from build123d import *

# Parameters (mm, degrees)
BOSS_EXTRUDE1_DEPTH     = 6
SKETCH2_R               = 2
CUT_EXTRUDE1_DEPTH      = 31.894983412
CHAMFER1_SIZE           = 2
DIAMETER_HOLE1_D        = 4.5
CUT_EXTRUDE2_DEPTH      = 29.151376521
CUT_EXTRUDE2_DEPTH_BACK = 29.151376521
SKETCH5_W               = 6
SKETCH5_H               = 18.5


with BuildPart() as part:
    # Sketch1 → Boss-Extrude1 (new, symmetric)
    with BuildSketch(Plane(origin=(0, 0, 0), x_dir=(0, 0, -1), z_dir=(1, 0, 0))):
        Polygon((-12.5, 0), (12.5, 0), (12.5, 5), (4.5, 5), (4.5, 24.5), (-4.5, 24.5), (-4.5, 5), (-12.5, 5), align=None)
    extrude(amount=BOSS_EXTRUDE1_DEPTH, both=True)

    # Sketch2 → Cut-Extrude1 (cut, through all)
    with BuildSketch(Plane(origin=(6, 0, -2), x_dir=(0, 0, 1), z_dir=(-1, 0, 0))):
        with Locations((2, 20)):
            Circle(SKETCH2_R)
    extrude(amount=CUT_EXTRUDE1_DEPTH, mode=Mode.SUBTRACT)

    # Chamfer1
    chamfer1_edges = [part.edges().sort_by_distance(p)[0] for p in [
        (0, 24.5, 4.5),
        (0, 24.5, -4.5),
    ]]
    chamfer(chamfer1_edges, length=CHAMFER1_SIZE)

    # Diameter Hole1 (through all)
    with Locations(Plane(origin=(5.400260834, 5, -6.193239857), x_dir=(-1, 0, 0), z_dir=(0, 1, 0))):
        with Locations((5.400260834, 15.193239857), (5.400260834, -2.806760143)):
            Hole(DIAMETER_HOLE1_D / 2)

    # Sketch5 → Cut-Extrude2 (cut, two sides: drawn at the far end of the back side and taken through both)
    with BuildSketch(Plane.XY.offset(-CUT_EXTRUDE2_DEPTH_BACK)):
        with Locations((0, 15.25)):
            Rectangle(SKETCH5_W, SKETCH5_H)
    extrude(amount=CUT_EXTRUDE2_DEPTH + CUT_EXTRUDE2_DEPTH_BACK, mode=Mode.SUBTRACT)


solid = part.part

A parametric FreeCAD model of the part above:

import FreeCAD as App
import Part
import Sketcher
Q = App.Units.Quantity


def edges_at(feature, points):
    """Names of the edges that pass closest to the given points."""
    edges = feature.Shape.Edges
    near = lambda p: min(range(len(edges)), key=lambda i: edges[i].distToShape(Part.Vertex(*p))[0])
    return sorted({f"Edge{near(p) + 1}" for p in points})


def add_polygon(sketch, points):
    """Adds a closed chain of lines whose ends are joined by coincident constraints."""
    first, n = sketch.GeometryCount, len(points)
    for a, b in zip(points, points[1:] + points[:1]):
        sketch.addGeometry(Part.LineSegment(App.Vector(*a, 0), App.Vector(*b, 0)), False)
    for i in range(n):
        sketch.addConstraint(Sketcher.Constraint("Coincident", first + i, 2, first + (i + 1) % n, 1))

doc = App.newDocument("Part")
body = doc.addObject("PartDesign::Body", "Body")

sketch1 = body.newObject("Sketcher::SketchObject", "Sketch")
sketch1.AttachmentSupport = (doc.getObject("YZ_Plane"), [""])
sketch1.MapMode = "FlatFace"
add_polygon(sketch1, [(0, 12), (0, -12), (5, -12), (5, -4), (24, -4), (24, 4), (5, 4), (5, 12)])
sketch1.addConstraint([
    Sketcher.Constraint("Vertical", 0),
    Sketcher.Constraint("Horizontal", 1),
    Sketcher.Constraint("Vertical", 2),
    Sketcher.Constraint("Horizontal", 3),
    Sketcher.Constraint("Vertical", 4),
    Sketcher.Constraint("Horizontal", 5),
    Sketcher.Constraint("Vertical", 6),
    Sketcher.Constraint("Horizontal", 7),
    Sketcher.Constraint("Symmetric", 0, 2, 7, 2, -1, 1),
    Sketcher.Constraint("Symmetric", 2, 2, 5, 2, -1),
    Sketcher.Constraint("DistanceX", 1, 1, 1, 2, Q("5 mm")),
    Sketcher.Constraint("DistanceY", 0, 2, 0, 1, Q("25 mm")),
    Sketcher.Constraint("DistanceY", 2, 1, 2, 2, Q("8 mm")),
    Sketcher.Constraint("DistanceX", 3, 1, 3, 2, Q("19.5 mm")),
])
pad1 = body.newObject("PartDesign::Pad", "Pad")
pad1.Profile = sketch1
pad1.Length = 12
pad1.Midplane = True

sketch2 = body.newObject("Sketcher::SketchObject", "Sketch001")
sketch2.AttachmentSupport = (doc.getObject("YZ_Plane"), [""])
sketch2.MapMode = "FlatFace"
sketch2.AttachmentOffset = App.Placement(App.Vector(0, 0, 6), App.Rotation())
sketch2.addGeometry(Part.Circle(App.Vector(20, 0, 0), App.Vector(0, 0, 1), 2), False)
sketch2.addConstraint([
    Sketcher.Constraint("PointOnObject", 0, 3, -1),
    Sketcher.Constraint("Diameter", 0, Q("4 mm")),
    Sketcher.Constraint("DistanceX", -1, 1, 0, 3, Q("20 mm")),
])
pocket1 = body.newObject("PartDesign::Pocket", "Pocket")
pocket1.Profile = sketch2
pocket1.Type = "ThroughAll"
doc.recompute()

chamfer = body.newObject("PartDesign::Chamfer", "Chamfer")
chamfer.Base = (pocket1, edges_at(pocket1, [(0, 24.5, 4.5), (0, 24.5, -4.5)]))
chamfer.Size = 2

sketch3 = body.newObject("Sketcher::SketchObject", "Sketch002")
sketch3.AttachmentSupport = (doc.getObject("XZ_Plane"), [""])
sketch3.MapMode = "FlatFace"
sketch3.AttachmentOffset = App.Placement(App.Vector(0, 0, -5), App.Rotation())
sketch3.addGeometry([
    Part.Circle(App.Vector(0, 9, 0), App.Vector(0, 0, 1), 2.2),
    Part.Circle(App.Vector(0, -9, 0), App.Vector(0, 0, 1), 2.2),
], False)
sketch3.addConstraint([
    Sketcher.Constraint("Equal", 0, 1),
    Sketcher.Constraint("Symmetric", 0, 3, 1, 3, -1, 1),
    Sketcher.Constraint("PointOnObject", 0, 3, -2),
    Sketcher.Constraint("Diameter", 0, Q("4.5 mm")),
    Sketcher.Constraint("DistanceY", -1, 1, 0, 3, Q("9 mm")),
])
doc.recompute()
hole = body.newObject("PartDesign::Hole", "Hole")
hole.Profile = sketch3
hole.ThreadType = "None"
hole.Diameter = 4.5
hole.DepthType = "ThroughAll"
hole.Reversed = True

sketch4 = body.newObject("Sketcher::SketchObject", "Sketch003")
sketch4.AttachmentSupport = (doc.getObject("XY_Plane"), [""])
sketch4.MapMode = "FlatFace"
add_polygon(sketch4, [(-3, 24), (-3, 6), (3, 6), (3, 24)])
sketch4.addConstraint([
    Sketcher.Constraint("Vertical", 0),
    Sketcher.Constraint("Horizontal", 1),
    Sketcher.Constraint("Vertical", 2),
    Sketcher.Constraint("Horizontal", 3),
    Sketcher.Constraint("DistanceX", 1, 1, 1, 2, Q("6 mm")),
    Sketcher.Constraint("DistanceY", 0, 2, 0, 1, Q("18.5 mm")),
    Sketcher.Constraint("DistanceX", 0, 2, -1, 1, Q("3 mm")),
    Sketcher.Constraint("DistanceY", -1, 1, 0, 2, Q("6 mm")),
])
pocket2 = body.newObject("PartDesign::Pocket", "Pocket001")
pocket2.Profile = sketch4
pocket2.Type = "ThroughAll"
pocket2.Midplane = True

doc.recompute()
